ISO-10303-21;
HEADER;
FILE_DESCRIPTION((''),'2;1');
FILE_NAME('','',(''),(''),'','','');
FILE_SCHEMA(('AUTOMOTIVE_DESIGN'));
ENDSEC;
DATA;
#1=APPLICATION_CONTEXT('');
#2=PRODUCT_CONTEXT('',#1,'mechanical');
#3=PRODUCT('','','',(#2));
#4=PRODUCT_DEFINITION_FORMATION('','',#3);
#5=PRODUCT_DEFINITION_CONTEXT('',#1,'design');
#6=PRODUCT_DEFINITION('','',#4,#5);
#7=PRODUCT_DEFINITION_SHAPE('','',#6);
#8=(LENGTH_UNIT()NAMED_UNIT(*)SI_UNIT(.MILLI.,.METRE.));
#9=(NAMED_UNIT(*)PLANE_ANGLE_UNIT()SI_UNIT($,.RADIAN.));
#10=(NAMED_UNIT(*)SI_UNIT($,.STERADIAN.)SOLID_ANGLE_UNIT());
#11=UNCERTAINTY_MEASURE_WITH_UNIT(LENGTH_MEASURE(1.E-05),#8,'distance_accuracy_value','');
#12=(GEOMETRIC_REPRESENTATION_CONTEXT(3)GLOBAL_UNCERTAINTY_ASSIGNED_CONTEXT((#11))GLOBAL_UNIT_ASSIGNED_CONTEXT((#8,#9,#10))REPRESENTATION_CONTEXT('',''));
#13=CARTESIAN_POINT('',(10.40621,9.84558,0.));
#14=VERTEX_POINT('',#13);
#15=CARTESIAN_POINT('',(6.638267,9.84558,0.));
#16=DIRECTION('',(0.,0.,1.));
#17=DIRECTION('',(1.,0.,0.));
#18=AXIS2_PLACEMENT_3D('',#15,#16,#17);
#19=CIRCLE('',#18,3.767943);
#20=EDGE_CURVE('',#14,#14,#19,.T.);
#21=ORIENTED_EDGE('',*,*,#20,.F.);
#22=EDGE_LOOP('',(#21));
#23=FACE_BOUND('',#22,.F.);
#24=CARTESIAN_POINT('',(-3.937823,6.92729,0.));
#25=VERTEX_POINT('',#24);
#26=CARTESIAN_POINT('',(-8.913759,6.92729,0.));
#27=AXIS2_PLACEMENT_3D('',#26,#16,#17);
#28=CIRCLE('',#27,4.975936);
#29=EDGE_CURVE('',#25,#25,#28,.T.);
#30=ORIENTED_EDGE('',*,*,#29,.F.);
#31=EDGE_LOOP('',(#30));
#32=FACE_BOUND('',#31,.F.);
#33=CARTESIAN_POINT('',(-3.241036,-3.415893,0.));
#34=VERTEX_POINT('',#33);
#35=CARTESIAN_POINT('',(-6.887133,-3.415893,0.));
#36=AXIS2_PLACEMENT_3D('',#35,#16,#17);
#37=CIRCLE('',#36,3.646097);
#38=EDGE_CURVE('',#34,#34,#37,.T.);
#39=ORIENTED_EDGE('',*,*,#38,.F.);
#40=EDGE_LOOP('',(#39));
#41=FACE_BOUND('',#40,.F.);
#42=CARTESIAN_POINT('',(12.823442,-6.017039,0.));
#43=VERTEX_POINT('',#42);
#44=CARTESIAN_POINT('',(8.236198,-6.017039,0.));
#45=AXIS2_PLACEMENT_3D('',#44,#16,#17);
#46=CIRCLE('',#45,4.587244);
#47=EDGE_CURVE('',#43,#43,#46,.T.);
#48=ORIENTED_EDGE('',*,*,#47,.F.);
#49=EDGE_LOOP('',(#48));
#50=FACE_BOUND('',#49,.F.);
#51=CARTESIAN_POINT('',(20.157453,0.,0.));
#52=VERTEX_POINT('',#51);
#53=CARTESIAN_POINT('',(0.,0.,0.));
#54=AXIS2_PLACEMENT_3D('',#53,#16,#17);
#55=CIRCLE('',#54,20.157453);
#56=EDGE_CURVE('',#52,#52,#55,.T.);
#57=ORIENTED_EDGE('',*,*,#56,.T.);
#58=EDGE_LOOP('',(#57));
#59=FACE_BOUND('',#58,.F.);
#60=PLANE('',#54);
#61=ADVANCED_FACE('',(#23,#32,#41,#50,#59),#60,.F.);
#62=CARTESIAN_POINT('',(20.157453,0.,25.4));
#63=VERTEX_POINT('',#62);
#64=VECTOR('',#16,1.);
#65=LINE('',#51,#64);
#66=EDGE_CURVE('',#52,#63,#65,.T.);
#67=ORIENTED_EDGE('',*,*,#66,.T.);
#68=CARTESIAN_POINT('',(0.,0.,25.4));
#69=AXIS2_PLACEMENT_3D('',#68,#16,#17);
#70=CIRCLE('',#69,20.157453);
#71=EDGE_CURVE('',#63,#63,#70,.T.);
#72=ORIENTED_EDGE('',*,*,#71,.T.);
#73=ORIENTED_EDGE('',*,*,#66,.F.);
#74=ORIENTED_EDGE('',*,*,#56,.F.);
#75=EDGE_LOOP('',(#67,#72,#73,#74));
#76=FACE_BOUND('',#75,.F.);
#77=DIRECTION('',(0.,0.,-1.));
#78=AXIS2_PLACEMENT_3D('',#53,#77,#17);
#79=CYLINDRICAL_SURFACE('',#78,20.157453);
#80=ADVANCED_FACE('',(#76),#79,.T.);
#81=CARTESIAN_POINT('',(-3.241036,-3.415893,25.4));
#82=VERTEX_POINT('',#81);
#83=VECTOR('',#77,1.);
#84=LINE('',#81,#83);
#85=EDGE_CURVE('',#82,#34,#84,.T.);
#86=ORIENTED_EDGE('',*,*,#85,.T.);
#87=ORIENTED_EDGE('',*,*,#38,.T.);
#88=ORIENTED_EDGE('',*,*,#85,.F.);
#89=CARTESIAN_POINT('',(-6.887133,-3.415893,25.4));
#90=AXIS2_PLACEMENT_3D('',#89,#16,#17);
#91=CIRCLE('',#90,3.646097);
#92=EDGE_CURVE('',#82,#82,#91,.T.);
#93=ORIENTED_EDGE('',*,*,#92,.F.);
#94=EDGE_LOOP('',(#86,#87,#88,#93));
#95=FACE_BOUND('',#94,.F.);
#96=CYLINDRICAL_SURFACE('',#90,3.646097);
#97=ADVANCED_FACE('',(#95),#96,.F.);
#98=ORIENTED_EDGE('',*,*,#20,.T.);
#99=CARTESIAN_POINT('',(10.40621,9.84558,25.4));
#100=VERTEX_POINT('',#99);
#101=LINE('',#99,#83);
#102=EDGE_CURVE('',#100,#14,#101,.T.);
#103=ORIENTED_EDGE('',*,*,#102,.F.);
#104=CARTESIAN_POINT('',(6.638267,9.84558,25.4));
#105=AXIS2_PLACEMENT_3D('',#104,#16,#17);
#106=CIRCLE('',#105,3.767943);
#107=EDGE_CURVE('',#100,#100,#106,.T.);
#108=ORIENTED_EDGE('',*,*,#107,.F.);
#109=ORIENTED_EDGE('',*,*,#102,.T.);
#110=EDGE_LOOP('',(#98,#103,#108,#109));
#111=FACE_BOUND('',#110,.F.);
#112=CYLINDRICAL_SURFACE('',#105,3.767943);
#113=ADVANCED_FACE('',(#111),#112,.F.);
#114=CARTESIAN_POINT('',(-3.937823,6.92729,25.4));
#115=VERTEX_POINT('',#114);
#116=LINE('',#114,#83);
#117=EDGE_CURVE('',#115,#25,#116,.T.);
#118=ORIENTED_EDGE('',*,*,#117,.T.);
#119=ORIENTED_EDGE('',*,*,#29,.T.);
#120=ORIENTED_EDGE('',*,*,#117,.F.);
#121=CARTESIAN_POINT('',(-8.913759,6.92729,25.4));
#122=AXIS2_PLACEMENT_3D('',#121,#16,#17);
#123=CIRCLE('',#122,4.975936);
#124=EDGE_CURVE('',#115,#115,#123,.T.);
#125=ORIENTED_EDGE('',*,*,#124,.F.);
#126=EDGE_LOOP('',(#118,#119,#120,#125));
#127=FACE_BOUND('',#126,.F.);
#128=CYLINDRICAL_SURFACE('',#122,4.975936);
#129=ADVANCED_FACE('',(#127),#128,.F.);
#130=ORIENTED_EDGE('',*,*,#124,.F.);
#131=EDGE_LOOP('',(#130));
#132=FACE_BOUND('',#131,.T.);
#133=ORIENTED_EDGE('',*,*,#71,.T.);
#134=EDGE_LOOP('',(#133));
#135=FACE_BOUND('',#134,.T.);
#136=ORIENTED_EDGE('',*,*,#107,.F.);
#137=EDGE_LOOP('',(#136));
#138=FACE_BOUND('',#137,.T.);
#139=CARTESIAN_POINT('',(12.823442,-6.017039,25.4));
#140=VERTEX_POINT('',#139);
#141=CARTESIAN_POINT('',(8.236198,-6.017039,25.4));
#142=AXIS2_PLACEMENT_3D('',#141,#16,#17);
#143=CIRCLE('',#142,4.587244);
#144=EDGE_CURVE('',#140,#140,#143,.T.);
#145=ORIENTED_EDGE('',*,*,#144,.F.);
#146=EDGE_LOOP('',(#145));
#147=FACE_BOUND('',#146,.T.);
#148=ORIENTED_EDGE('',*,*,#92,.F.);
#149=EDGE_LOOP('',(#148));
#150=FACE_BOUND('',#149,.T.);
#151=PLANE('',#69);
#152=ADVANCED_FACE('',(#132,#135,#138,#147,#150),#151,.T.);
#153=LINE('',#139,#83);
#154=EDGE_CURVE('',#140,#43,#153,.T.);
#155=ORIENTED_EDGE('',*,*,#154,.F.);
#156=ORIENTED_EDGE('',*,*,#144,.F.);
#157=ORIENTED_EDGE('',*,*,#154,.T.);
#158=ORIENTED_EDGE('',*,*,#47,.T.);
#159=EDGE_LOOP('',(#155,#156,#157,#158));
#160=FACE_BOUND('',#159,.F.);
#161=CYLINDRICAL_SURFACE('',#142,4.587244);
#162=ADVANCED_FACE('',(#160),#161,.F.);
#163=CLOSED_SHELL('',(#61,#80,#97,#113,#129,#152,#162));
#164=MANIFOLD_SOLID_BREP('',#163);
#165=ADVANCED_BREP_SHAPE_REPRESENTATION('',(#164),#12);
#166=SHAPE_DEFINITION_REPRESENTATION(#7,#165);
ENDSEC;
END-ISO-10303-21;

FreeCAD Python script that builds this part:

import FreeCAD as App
import Part
import Sketcher
Q = App.Units.Quantity

doc = App.newDocument("Part")
body = doc.addObject("PartDesign::Body", "Body")

# Sketch on XY plane
sketch1 = body.newObject("Sketcher::SketchObject", "Sketch")
sketch1.AttachmentSupport = (doc.getObject("XY_Plane"), [""])
sketch1.MapMode = "FlatFace"
sketch1.addGeometry(Part.Circle(App.Vector(0, 0, 0), App.Vector(0, 0, 1), 20), False)
sketch1.addConstraint([
    Sketcher.Constraint("Coincident", 0, 3, -1, 1),
    Sketcher.Constraint("Diameter", 0, Q("40.314906 mm")),
])
pad1 = body.newObject("PartDesign::Pad", "Pad")
pad1.Profile = sketch1
pad1.Length = Q("1 in")

# Sketch on XY plane
sketch2 = body.newObject("Sketcher::SketchObject", "Sketch001")
sketch2.AttachmentSupport = (doc.getObject("XY_Plane"), [""])
sketch2.MapMode = "FlatFace"
sketch2.AttachmentOffset = App.Placement(App.Vector(0, 0, 1 * 25.4), App.Rotation())
sketch2.addGeometry([
    Part.Circle(App.Vector(6.6, 9.8, 0), App.Vector(0, 0, 1), 3.8),
    Part.Circle(App.Vector(-8.9, 6.9, 0), App.Vector(0, 0, 1), 5),
    Part.Circle(App.Vector(8.2, -6, 0), App.Vector(0, 0, 1), 4.6),
    Part.Circle(App.Vector(-6.9, -3.4, 0), App.Vector(0, 0, 1), 3.6),
], False)
sketch2.addConstraint([
    Sketcher.Constraint("Diameter", 0, Q("7.535886 mm")),
    Sketcher.Constraint("Diameter", 1, Q("9.951872 mm")),
    Sketcher.Constraint("Diameter", 2, Q("9.174488 mm")),
    Sketcher.Constraint("Diameter", 3, Q("7.292194 mm")),
    Sketcher.Constraint("DistanceX", 3, 3, 0, 3, Q("13.5254 mm")),
    Sketcher.Constraint("DistanceY", -1, 1, 0, 3, Q("9.84558 mm")),
    Sketcher.Constraint("DistanceX", 1, 3, -1, 1, Q("8.913759 mm")),
    Sketcher.Constraint("DistanceY", -1, 1, 1, 3, Q("6.92729 mm")),
    Sketcher.Constraint("DistanceY", 2, 3, -1, 1, Q("6.017039 mm")),
    Sketcher.Constraint("DistanceX", 0, 3, 2, 3, Q("1.597931 mm")),
    Sketcher.Constraint("DistanceX", -1, 1, 0, 3, Q("6.638267 mm")),
    Sketcher.Constraint("DistanceY", 3, 3, -1, 1, Q("3.415893 mm")),
])
pocket1 = body.newObject("PartDesign::Pocket", "Pocket")
pocket1.Profile = sketch2
pocket1.Length = Q("1 in")

doc.recompute()
